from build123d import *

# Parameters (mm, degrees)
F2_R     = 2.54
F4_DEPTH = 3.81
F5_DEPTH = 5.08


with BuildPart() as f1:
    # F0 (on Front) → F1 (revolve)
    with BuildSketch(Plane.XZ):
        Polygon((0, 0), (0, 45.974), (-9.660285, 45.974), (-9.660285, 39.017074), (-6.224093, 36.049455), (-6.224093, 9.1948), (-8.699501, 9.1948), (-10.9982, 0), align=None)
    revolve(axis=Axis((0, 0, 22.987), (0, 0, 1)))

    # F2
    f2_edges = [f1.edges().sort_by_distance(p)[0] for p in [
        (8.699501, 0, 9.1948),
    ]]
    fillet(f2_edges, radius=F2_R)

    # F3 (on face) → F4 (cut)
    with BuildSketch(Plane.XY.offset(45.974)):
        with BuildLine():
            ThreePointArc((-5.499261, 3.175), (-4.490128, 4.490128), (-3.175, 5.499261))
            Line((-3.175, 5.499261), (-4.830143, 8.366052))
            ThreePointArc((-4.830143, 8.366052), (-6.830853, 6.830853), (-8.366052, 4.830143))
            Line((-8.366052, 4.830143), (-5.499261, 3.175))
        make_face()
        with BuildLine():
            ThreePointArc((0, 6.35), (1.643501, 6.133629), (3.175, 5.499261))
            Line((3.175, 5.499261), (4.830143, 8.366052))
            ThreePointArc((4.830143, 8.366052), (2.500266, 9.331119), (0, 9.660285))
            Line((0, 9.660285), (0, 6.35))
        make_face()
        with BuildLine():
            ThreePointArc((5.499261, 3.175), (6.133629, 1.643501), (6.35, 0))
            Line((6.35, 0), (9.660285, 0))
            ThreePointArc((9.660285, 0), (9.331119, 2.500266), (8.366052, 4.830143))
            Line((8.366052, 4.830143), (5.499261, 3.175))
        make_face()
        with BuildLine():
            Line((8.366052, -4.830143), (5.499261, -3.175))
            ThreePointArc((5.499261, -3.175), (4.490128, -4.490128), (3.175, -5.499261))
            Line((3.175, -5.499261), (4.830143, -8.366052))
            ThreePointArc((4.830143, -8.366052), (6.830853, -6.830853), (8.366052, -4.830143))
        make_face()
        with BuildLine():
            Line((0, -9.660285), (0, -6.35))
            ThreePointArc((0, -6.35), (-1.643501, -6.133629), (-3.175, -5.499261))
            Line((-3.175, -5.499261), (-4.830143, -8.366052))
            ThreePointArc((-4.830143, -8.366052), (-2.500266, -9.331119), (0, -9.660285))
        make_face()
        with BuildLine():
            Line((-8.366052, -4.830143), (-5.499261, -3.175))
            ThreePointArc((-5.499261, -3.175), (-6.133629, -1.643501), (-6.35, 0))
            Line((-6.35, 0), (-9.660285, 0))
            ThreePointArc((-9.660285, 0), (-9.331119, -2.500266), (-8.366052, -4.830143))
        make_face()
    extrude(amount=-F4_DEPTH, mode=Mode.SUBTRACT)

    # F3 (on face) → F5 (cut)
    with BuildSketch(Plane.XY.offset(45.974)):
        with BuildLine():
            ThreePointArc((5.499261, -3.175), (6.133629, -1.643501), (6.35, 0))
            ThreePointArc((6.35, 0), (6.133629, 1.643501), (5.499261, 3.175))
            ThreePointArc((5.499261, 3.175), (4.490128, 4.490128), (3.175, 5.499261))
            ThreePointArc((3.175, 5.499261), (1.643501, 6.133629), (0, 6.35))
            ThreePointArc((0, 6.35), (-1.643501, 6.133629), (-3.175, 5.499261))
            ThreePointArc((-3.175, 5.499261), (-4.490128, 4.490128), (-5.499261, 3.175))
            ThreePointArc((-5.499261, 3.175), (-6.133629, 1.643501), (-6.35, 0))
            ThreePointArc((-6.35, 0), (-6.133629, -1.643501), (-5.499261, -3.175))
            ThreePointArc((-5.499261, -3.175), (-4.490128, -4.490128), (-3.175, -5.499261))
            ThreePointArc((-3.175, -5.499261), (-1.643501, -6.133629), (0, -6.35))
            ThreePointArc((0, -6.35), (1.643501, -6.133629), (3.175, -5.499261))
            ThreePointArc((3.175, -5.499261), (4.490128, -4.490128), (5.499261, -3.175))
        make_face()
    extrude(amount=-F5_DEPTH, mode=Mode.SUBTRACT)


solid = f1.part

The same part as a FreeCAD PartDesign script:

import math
import FreeCAD as App
import Part
import Sketcher
Q = App.Units.Quantity


def edges_at(feature, points):
    """Names of the edges that pass closest to the given points."""
    edges = feature.Shape.Edges
    near = lambda p: min(range(len(edges)), key=lambda i: edges[i].distToShape(Part.Vertex(*p))[0])
    return sorted({f"Edge{near(p) + 1}" for p in points})

doc = App.newDocument("Part")
body = doc.addObject("PartDesign::Body", "Body")

# Sketch on XZ plane
sketch1 = body.newObject("Sketcher::SketchObject", "Sketch")
sketch1.AttachmentSupport = (doc.getObject("XZ_Plane"), [""])
sketch1.MapMode = "FlatFace"
sketch1.addGeometry([
    Part.LineSegment(App.Vector(0, 0, 0), App.Vector(0, 46, 0)),  # 0
    Part.LineSegment(App.Vector(0, 46, 0), App.Vector(-9.7, 46, 0)),  # 1
    Part.LineSegment(App.Vector(-9.7, 46, 0), App.Vector(-9.7, 39, 0)),  # 2
    Part.LineSegment(App.Vector(-9.7, 39, 0), App.Vector(-6.2, 36, 0)),  # 3
    Part.LineSegment(App.Vector(-6.2, 36, 0), App.Vector(-6.2, 9.2, 0)),  # 4
    Part.LineSegment(App.Vector(-6.2, 9.2, 0), App.Vector(-8.7, 9.2, 0)),  # 5
    Part.LineSegment(App.Vector(-8.7, 9.2, 0), App.Vector(-11, 0, 0)),  # 6
    Part.LineSegment(App.Vector(-11, 0, 0), App.Vector(0, 0, 0)),  # 7
], False)
sketch1.addConstraint([
    Sketcher.Constraint("Coincident", 0, 2, 1, 1),
    Sketcher.Constraint("Coincident", 1, 2, 2, 1),
    Sketcher.Constraint("Coincident", 2, 2, 3, 1),
    Sketcher.Constraint("Coincident", 3, 2, 4, 1),
    Sketcher.Constraint("Coincident", 4, 2, 5, 1),
    Sketcher.Constraint("Coincident", 5, 2, 6, 1),
    Sketcher.Constraint("Coincident", 6, 2, 7, 1),
    Sketcher.Constraint("Coincident", 7, 2, 0, 1),
    Sketcher.Constraint("Vertical", 0),
    Sketcher.Constraint("Horizontal", 1),
    Sketcher.Constraint("Vertical", 2),
    Sketcher.Constraint("Vertical", 4),
    Sketcher.Constraint("Horizontal", 5),
    Sketcher.Constraint("Horizontal", 7),
    Sketcher.Constraint("Coincident", 7, 2, -1, 1),
    Sketcher.Constraint("DistanceY", 0, 1, 0, 2, Q("1.81 in")),
    Sketcher.Constraint("DistanceX", 7, 1, 7, 2, Q("0.433 in")),
    Sketcher.Constraint("DistanceY", -1, 1, 4, 2, Q("0.362 in")),
    Sketcher.Constraint("DistanceX", 5, 2, -1, 1, Q("0.3425 in")),
    Sketcher.Constraint("DistanceX", 1, 2, 1, 1, Q("9.660285 mm")),
    Sketcher.Constraint("DistanceX", 5, 2, 5, 1, Q("2.475408 mm")),
    Sketcher.Constraint("DistanceY", 2, 2, 2, 1, Q("6.956926 mm")),
    Sketcher.Constraint("DistanceY", 4, 2, 4, 1, Q("26.854655 mm")),
])
revolution = body.newObject("PartDesign::Revolution", "Revolution")
revolution.Profile = sketch1
revolution.ReferenceAxis = (sketch1, ["V_Axis"])
revolution.Angle = 360
doc.recompute()

fillet = body.newObject("PartDesign::Fillet", "Fillet")
fillet.Base = (revolution, edges_at(revolution, [(8.7, 0, 9.195)]))
fillet.Radius = Q("0.1 in")

# Sketch on XY plane
sketch2 = body.newObject("Sketcher::SketchObject", "Sketch001")
sketch2.AttachmentSupport = (doc.getObject("XY_Plane"), [""])
sketch2.MapMode = "FlatFace"
sketch2.AttachmentOffset = App.Placement(App.Vector(0, 0, 1.81 * 25.4), App.Rotation())
sketch2.addGeometry([
    Part.ArcOfCircle(Part.Circle(App.Vector(0, 0, 0), App.Vector(0, 0, 1), 6.3), math.radians(120), math.radians(150)),  # 0
    Part.LineSegment(App.Vector(-3.2, 5.5, 0), App.Vector(-4.8, 8.4, 0)),  # 1
    Part.ArcOfCircle(Part.Circle(App.Vector(0, 0, 0), App.Vector(0, 0, 1), 9.7), math.radians(120), math.radians(150)),  # 2
    Part.LineSegment(App.Vector(-8.4, 4.8, 0), App.Vector(-5.5, 3.2, 0)),  # 3
    Part.ArcOfCircle(Part.Circle(App.Vector(0, 0, 0), App.Vector(0, 0, 1), 6.3), math.radians(60), math.radians(90)),  # 4
    Part.LineSegment(App.Vector(3.2, 5.5, 0), App.Vector(4.8, 8.4, 0)),  # 5
    Part.ArcOfCircle(Part.Circle(App.Vector(0, 0, 0), App.Vector(0, 0, 1), 9.7), math.radians(60), math.radians(90)),  # 6
    Part.LineSegment(App.Vector(0, 9.7, 0), App.Vector(0, 6.3, 0)),  # 7
    Part.ArcOfCircle(Part.Circle(App.Vector(0, 0, 0), App.Vector(0, 0, 1), 6.3), math.radians(0), math.radians(30)),  # 8
    Part.LineSegment(App.Vector(6.3, 0, 0), App.Vector(9.7, 0, 0)),  # 9
    Part.ArcOfCircle(Part.Circle(App.Vector(0, 0, 0), App.Vector(0, 0, 1), 9.7), math.radians(0), math.radians(30)),  # 10
    Part.LineSegment(App.Vector(8.4, 4.8, 0), App.Vector(5.5, 3.2, 0)),  # 11
    Part.LineSegment(App.Vector(8.4, -4.8, 0), App.Vector(5.5, -3.2, 0)),  # 12
    Part.ArcOfCircle(Part.Circle(App.Vector(0, 0, 0), App.Vector(0, 0, 1), 6.3), math.radians(-60), math.radians(-30)),  # 13
    Part.LineSegment(App.Vector(3.2, -5.5, 0), App.Vector(4.8, -8.4, 0)),  # 14
    Part.ArcOfCircle(Part.Circle(App.Vector(0, 0, 0), App.Vector(0, 0, 1), 9.7), math.radians(-60), math.radians(-30)),  # 15
    Part.LineSegment(App.Vector(0, -9.7, 0), App.Vector(0, -6.3, 0)),  # 16
    Part.ArcOfCircle(Part.Circle(App.Vector(0, 0, 0), App.Vector(0, 0, 1), 6.3), math.radians(-120), math.radians(-90)),  # 17
    Part.LineSegment(App.Vector(-3.2, -5.5, 0), App.Vector(-4.8, -8.4, 0)),  # 18
    Part.ArcOfCircle(Part.Circle(App.Vector(0, 0, 0), App.Vector(0, 0, 1), 9.7), math.radians(-120), math.radians(-90)),  # 19
    Part.LineSegment(App.Vector(-8.4, -4.8, 0), App.Vector(-5.5, -3.2, 0)),  # 20
    Part.ArcOfCircle(Part.Circle(App.Vector(0, 0, 0), App.Vector(0, 0, 1), 6.3), math.radians(180), math.radians(210)),  # 21
    Part.LineSegment(App.Vector(-6.3, 0, 0), App.Vector(-9.7, 0, 0)),  # 22
    Part.ArcOfCircle(Part.Circle(App.Vector(0, 0, 0), App.Vector(0, 0, 1), 9.7), math.radians(180), math.radians(210)),  # 23
], False)
sketch2.addConstraint([
    Sketcher.Constraint("Coincident", 0, 1, 1, 1),
    Sketcher.Constraint("Coincident", 1, 2, 2, 1),
    Sketcher.Constraint("Coincident", 2, 2, 3, 1),
    Sketcher.Constraint("Coincident", 3, 2, 0, 2),
    Sketcher.Constraint("Coincident", 4, 1, 5, 1),
    Sketcher.Constraint("Coincident", 5, 2, 6, 1),
    Sketcher.Constraint("Coincident", 6, 2, 7, 1),
    Sketcher.Constraint("Coincident", 7, 2, 4, 2),
    Sketcher.Constraint("Coincident", 8, 1, 9, 1),
    Sketcher.Constraint("Coincident", 9, 2, 10, 1),
    Sketcher.Constraint("Coincident", 10, 2, 11, 1),
    Sketcher.Constraint("Coincident", 11, 2, 8, 2),
    Sketcher.Constraint("Coincident", 12, 2, 13, 2),
    Sketcher.Constraint("Coincident", 13, 1, 14, 1),
    Sketcher.Constraint("Coincident", 14, 2, 15, 1),
    Sketcher.Constraint("Coincident", 15, 2, 12, 1),
    Sketcher.Constraint("Coincident", 16, 2, 17, 2),
    Sketcher.Constraint("Coincident", 17, 1, 18, 1),
    Sketcher.Constraint("Coincident", 18, 2, 19, 1),
    Sketcher.Constraint("Coincident", 19, 2, 16, 1),
    Sketcher.Constraint("Coincident", 20, 2, 21, 2),
    Sketcher.Constraint("Coincident", 21, 1, 22, 1),
    Sketcher.Constraint("Coincident", 22, 2, 23, 1),
    Sketcher.Constraint("Coincident", 23, 2, 20, 1),
    Sketcher.Constraint("Vertical", 7),
    Sketcher.Constraint("Horizontal", 9),
    Sketcher.Constraint("Vertical", 16),
    Sketcher.Constraint("Horizontal", 22),
    Sketcher.Constraint("Coincident", 0, 3, -1, 1),
    Sketcher.Constraint("Coincident", 2, 3, -1, 1),
    Sketcher.Constraint("Coincident", 4, 3, -1, 1),
    Sketcher.Constraint("Coincident", 6, 3, -1, 1),
    Sketcher.Constraint("Coincident", 8, 3, -1, 1),
    Sketcher.Constraint("Coincident", 10, 3, -1, 1),
    Sketcher.Constraint("Coincident", 13, 3, -1, 1),
    Sketcher.Constraint("Coincident", 15, 3, -1, 1),
    Sketcher.Constraint("Coincident", 17, 3, -1, 1),
    Sketcher.Constraint("Coincident", 19, 3, -1, 1),
    Sketcher.Constraint("Coincident", 21, 3, -1, 1),
    Sketcher.Constraint("Coincident", 23, 3, -1, 1),
    Sketcher.Constraint("Equal", 0, 4),
    Sketcher.Constraint("Equal", 4, 8),
    Sketcher.Constraint("Equal", 6, 10),
    Sketcher.Constraint("Equal", 8, 13),
    Sketcher.Constraint("Equal", 2, 15),
    Sketcher.Constraint("Equal", 13, 17),
    Sketcher.Constraint("Equal", 10, 19),
    Sketcher.Constraint("Equal", 17, 21),
    Sketcher.Constraint("Equal", 19, 23),
    Sketcher.Constraint("Symmetric", 1, 2, 5, 2, -2),
    Sketcher.Constraint("PointOnObject", 6, 2, -2),
    Sketcher.Constraint("PointOnObject", 8, 1, -1),
    Sketcher.Constraint("PointOnObject", 16, 2, -2),
    Sketcher.Constraint("PointOnObject", 21, 1, -1),
    Sketcher.Constraint("Perpendicular", 3, 5),
    Sketcher.Constraint("Perpendicular", 1, 11),
    Sketcher.Constraint("Perpendicular", 5, 12),
    Sketcher.Constraint("Perpendicular", 11, 14),
    Sketcher.Constraint("Perpendicular", 12, 18),
    Sketcher.Constraint("Perpendicular", 14, 20),
    Sketcher.Constraint("Horizontal", 0, 1, 4, 1),
    Sketcher.Constraint("Horizontal", 2, 2, 10, 2),
    Sketcher.Constraint("Horizontal", 13, 1, 17, 1),
    Sketcher.Constraint("Horizontal", 12, 2, 20, 2),
    Sketcher.Constraint("Vertical", 11, 2, 12, 2),
    Sketcher.Constraint("Vertical", 4, 1, 13, 1),
    Sketcher.Constraint("Radius", 4, Q("0.2499998 in")),
    Sketcher.Constraint("Angle", 1, Q("120.000007 deg")),
    Sketcher.Constraint("DistanceX", 0, 1, -1, 1, Q("0.125 in")),
    Sketcher.Constraint("DistanceY", -1, 1, 3, 2, Q("0.125 in")),
    Sketcher.Constraint("Radius", 2, Q("9.660288 mm")),
])
pocket1 = body.newObject("PartDesign::Pocket", "Pocket")
pocket1.Profile = sketch2
pocket1.Length = Q("0.15 in")

# Sketch on XY plane
sketch3 = body.newObject("Sketcher::SketchObject", "Sketch002")
sketch3.AttachmentSupport = (doc.getObject("XY_Plane"), [""])
sketch3.MapMode = "FlatFace"
sketch3.AttachmentOffset = App.Placement(App.Vector(0, 0, 1.81 * 25.4), App.Rotation())
sketch3.addGeometry([
    Part.ArcOfCircle(Part.Circle(App.Vector(0, 0, 0), App.Vector(0, 0, 1), 6.3), math.radians(-30), math.radians(0)),  # 0
    Part.ArcOfCircle(Part.Circle(App.Vector(0, 0, 0), App.Vector(0, 0, 1), 6.3), math.radians(0), math.radians(30)),  # 1
    Part.ArcOfCircle(Part.Circle(App.Vector(0, 0, 0), App.Vector(0, 0, 1), 6.3), math.radians(30), math.radians(60)),  # 2
    Part.ArcOfCircle(Part.Circle(App.Vector(0, 0, 0), App.Vector(0, 0, 1), 6.3), math.radians(60), math.radians(90)),  # 3
    Part.ArcOfCircle(Part.Circle(App.Vector(0, 0, 0), App.Vector(0, 0, 1), 6.3), math.radians(90), math.radians(120)),  # 4
    Part.ArcOfCircle(Part.Circle(App.Vector(0, 0, 0), App.Vector(0, 0, 1), 6.3), math.radians(120), math.radians(150)),  # 5
    Part.ArcOfCircle(Part.Circle(App.Vector(0, 0, 0), App.Vector(0, 0, 1), 6.3), math.radians(150), math.radians(180)),  # 6
    Part.ArcOfCircle(Part.Circle(App.Vector(0, 0, 0), App.Vector(0, 0, 1), 6.3), math.radians(180), math.radians(210)),  # 7
    Part.ArcOfCircle(Part.Circle(App.Vector(0, 0, 0), App.Vector(0, 0, 1), 6.3), math.radians(-150), math.radians(-120)),  # 8
    Part.ArcOfCircle(Part.Circle(App.Vector(0, 0, 0), App.Vector(0, 0, 1), 6.3), math.radians(-120), math.radians(-90)),  # 9
    Part.ArcOfCircle(Part.Circle(App.Vector(0, 0, 0), App.Vector(0, 0, 1), 6.3), math.radians(-90), math.radians(-60)),  # 10
    Part.ArcOfCircle(Part.Circle(App.Vector(0, 0, 0), App.Vector(0, 0, 1), 6.3), math.radians(-60), math.radians(-30)),  # 11
], False)
sketch3.addConstraint([
    Sketcher.Constraint("Tangent", 0, 2, 1, 1),
    Sketcher.Constraint("Tangent", 1, 2, 2, 1),
    Sketcher.Constraint("Tangent", 2, 2, 3, 1),
    Sketcher.Constraint("Tangent", 3, 2, 4, 1),
    Sketcher.Constraint("Tangent", 4, 2, 5, 1),
    Sketcher.Constraint("Tangent", 5, 2, 6, 1),
    Sketcher.Constraint("Tangent", 6, 2, 7, 1),
    Sketcher.Constraint("Tangent", 7, 2, 8, 1),
    Sketcher.Constraint("Tangent", 8, 2, 9, 1),
    Sketcher.Constraint("Tangent", 9, 2, 10, 1),
    Sketcher.Constraint("Tangent", 10, 2, 11, 1),
    Sketcher.Constraint("Tangent", 11, 2, 0, 1),
    Sketcher.Constraint("Coincident", 0, 3, -1, 1),
    Sketcher.Constraint("Coincident", 2, 3, -1, 1),
    Sketcher.Constraint("Coincident", 4, 3, -1, 1),
    Sketcher.Constraint("Coincident", 6, 3, -1, 1),
    Sketcher.Constraint("Coincident", 8, 3, -1, 1),
    Sketcher.Constraint("Equal", 8, 9),
    Sketcher.Constraint("PointOnObject", 0, 2, -1),
    Sketcher.Constraint("PointOnObject", 3, 2, -2),
    Sketcher.Constraint("PointOnObject", 6, 2, -1),
    Sketcher.Constraint("PointOnObject", 9, 2, -2),
    Sketcher.Constraint("Horizontal", 2, 2, 4, 2),
    Sketcher.Constraint("Horizontal", 1, 2, 5, 2),
    Sketcher.Constraint("Horizontal", 8, 2, 10, 2),
    Sketcher.Constraint("Horizontal", 7, 2, 11, 2),
    Sketcher.Constraint("Vertical", 5, 2, 7, 2),
    Sketcher.Constraint("Vertical", 4, 2, 8, 2),
    Sketcher.Constraint("Radius", 0, Q("0.2499998 in")),
    Sketcher.Constraint("DistanceY", -1, 1, 1, 2, Q("0.125 in")),
    Sketcher.Constraint("DistanceX", -1, 1, 2, 2, Q("0.125 in")),
])
pocket2 = body.newObject("PartDesign::Pocket", "Pocket001")
pocket2.Profile = sketch3
pocket2.Length = Q("0.2 in")

doc.recompute()
